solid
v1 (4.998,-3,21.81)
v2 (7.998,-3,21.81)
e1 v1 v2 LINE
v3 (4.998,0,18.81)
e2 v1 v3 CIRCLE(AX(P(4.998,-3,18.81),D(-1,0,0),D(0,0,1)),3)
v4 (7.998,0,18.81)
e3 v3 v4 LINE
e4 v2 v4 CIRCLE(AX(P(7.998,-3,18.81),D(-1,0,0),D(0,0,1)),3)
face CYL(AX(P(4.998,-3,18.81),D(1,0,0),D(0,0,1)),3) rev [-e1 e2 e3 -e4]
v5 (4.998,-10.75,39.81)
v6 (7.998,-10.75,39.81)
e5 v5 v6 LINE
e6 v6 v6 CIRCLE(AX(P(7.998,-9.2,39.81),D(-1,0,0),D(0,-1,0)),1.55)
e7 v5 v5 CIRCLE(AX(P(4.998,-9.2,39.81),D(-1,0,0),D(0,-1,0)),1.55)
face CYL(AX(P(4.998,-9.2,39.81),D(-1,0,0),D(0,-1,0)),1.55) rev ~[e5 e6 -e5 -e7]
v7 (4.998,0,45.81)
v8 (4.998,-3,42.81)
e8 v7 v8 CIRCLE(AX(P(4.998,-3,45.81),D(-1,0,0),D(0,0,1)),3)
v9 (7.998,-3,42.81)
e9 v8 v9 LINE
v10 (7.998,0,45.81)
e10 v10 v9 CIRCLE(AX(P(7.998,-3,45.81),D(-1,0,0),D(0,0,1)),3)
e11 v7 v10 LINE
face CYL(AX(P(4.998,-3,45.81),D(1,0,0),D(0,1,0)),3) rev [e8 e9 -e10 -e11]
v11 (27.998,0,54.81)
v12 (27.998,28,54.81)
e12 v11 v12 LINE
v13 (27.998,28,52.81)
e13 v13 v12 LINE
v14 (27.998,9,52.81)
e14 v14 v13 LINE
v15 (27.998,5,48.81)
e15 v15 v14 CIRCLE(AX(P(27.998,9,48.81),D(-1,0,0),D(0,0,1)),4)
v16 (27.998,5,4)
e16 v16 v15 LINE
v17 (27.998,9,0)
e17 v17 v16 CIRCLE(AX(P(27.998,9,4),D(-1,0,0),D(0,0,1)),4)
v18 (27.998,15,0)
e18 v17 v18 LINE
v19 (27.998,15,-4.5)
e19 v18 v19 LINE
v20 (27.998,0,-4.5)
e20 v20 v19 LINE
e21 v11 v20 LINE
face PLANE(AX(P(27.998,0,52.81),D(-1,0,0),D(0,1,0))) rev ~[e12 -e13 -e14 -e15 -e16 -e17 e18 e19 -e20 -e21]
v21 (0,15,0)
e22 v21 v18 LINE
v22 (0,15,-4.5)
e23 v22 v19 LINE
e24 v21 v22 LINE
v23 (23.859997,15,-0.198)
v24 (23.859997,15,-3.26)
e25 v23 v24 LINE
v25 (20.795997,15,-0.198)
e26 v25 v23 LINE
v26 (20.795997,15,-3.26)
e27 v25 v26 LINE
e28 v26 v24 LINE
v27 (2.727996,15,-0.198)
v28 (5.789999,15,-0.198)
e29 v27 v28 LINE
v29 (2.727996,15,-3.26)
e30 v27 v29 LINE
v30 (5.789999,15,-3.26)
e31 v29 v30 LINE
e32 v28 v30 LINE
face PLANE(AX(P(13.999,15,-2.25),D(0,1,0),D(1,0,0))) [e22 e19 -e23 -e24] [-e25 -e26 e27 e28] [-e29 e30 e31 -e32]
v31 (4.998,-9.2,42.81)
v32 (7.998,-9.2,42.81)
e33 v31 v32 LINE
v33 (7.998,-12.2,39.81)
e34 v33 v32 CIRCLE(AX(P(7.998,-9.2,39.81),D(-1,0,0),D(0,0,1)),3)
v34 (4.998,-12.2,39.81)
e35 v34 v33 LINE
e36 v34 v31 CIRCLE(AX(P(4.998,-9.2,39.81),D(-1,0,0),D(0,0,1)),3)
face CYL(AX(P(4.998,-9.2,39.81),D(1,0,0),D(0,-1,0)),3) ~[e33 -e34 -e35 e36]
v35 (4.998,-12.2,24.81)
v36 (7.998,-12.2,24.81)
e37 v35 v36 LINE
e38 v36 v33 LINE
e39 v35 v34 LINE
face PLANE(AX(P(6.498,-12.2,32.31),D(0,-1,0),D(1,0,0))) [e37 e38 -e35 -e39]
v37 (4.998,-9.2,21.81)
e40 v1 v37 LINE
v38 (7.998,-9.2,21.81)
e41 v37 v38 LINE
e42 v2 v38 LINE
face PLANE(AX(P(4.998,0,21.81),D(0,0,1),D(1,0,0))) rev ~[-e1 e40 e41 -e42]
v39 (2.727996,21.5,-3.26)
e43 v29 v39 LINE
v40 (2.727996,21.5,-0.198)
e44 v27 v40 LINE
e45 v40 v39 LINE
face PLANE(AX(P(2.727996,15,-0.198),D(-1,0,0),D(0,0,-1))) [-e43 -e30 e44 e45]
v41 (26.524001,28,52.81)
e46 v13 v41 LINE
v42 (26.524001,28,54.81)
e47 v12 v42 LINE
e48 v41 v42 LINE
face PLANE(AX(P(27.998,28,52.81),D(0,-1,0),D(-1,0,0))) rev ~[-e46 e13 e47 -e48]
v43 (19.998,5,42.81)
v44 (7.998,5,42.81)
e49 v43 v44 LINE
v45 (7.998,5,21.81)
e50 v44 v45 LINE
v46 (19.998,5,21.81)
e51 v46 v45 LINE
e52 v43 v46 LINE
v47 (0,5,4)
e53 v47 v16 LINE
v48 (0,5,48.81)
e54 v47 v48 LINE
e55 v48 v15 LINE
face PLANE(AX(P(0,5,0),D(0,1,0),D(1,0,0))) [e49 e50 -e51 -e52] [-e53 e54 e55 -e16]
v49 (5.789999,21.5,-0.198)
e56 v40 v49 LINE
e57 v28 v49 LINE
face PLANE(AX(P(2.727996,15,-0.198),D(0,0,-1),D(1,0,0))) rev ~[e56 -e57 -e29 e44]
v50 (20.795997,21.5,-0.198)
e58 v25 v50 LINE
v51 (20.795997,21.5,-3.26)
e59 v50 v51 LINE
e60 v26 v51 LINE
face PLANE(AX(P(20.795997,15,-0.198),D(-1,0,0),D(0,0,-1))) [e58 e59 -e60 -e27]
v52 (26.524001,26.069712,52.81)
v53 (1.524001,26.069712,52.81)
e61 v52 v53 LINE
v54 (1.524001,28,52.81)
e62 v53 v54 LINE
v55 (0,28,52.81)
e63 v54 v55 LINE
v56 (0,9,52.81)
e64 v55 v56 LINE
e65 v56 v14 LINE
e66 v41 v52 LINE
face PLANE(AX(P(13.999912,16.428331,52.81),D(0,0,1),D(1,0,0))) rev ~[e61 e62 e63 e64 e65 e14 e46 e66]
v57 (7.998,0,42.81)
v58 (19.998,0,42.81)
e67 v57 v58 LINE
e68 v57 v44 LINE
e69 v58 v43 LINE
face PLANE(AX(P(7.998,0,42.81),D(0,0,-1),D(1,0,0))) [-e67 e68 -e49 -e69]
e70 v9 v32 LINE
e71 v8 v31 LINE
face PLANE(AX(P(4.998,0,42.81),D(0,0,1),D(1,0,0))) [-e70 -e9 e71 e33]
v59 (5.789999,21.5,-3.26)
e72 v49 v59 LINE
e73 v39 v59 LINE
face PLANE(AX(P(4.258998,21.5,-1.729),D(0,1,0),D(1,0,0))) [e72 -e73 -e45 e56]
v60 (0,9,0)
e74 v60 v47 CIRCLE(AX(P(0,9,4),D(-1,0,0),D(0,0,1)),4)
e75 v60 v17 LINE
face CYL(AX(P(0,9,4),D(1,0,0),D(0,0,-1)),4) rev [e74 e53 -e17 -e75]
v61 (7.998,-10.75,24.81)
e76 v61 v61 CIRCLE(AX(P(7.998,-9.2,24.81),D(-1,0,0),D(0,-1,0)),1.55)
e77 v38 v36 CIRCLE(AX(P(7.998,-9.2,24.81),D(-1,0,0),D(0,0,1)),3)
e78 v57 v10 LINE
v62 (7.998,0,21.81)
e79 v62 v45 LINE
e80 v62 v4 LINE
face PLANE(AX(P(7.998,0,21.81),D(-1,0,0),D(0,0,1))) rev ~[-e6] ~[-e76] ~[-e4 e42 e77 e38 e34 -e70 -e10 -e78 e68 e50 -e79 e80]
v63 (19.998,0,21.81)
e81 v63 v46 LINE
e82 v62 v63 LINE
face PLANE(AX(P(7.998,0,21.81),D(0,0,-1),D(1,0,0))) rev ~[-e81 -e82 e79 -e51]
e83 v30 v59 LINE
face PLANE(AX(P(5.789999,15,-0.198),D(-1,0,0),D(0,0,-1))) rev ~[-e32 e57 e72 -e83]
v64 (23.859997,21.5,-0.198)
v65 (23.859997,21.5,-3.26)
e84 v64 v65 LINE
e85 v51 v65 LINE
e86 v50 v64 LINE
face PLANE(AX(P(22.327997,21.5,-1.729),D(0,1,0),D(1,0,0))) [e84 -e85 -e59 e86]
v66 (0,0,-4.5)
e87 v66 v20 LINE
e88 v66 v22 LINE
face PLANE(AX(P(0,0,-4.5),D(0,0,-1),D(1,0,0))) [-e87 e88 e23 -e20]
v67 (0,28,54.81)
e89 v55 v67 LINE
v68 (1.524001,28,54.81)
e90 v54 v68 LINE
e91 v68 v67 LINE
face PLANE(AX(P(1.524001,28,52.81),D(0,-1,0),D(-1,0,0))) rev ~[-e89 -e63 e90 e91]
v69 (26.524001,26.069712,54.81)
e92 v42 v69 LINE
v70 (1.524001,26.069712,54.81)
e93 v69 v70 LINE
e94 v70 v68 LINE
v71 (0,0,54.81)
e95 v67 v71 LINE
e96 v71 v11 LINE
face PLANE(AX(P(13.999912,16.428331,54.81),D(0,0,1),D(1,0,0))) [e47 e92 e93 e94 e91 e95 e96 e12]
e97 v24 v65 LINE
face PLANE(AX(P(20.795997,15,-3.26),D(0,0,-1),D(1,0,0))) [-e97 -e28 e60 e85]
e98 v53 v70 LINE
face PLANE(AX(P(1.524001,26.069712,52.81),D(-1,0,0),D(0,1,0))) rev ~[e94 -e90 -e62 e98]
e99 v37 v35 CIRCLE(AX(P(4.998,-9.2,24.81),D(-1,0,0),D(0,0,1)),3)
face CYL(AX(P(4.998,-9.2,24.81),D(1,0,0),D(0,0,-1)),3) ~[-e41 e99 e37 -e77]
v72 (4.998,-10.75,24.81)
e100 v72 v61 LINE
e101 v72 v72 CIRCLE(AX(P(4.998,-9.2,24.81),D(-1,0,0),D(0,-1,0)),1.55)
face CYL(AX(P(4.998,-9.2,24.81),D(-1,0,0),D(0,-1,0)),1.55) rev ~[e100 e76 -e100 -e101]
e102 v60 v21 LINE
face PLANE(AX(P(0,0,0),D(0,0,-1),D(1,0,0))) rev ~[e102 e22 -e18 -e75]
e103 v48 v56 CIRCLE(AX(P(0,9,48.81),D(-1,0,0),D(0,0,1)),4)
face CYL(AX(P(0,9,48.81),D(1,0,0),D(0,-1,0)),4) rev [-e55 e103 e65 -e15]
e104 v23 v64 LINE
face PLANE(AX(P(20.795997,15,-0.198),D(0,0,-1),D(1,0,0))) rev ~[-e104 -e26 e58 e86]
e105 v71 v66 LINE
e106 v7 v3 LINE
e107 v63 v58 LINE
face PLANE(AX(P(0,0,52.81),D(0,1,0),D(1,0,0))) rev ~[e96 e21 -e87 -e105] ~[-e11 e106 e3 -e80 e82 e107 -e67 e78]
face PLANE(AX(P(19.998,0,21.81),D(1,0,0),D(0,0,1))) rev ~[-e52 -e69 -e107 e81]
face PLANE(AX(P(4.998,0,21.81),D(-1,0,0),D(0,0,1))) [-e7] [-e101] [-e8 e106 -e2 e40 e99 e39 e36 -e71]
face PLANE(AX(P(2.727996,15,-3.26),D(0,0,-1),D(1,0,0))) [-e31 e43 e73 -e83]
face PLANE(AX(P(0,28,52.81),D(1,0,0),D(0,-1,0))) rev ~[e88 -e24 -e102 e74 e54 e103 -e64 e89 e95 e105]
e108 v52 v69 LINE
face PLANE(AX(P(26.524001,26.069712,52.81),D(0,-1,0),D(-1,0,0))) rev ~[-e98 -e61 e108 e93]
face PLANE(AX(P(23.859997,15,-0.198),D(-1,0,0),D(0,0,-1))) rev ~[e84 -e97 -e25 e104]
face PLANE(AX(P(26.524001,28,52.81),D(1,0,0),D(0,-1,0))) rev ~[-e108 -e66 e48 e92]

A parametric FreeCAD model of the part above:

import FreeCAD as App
import Part
import Sketcher
from FreeCAD import Vector
Q = App.Units.Quantity


def edges_at(feature, points):
    """Names of the edges that pass closest to the given points."""
    edges = feature.Shape.Edges
    near = lambda p: min(range(len(edges)), key=lambda i: edges[i].distToShape(Part.Vertex(*p))[0])
    return sorted({f"Edge{near(p) + 1}" for p in points})


def add_polygon(sketch, points):
    """Adds a closed chain of lines whose ends are joined by coincident constraints."""
    first, n = sketch.GeometryCount, len(points)
    for a, b in zip(points, points[1:] + points[:1]):
        sketch.addGeometry(Part.LineSegment(App.Vector(*a, 0), App.Vector(*b, 0)), False)
    for i in range(n):
        sketch.addConstraint(Sketcher.Constraint("Coincident", first + i, 2, first + (i + 1) % n, 1))

doc = App.newDocument("Part")
params = doc.addObject("Spreadsheet::Sheet", "Params")
for row, (alias, value) in enumerate([
    ("sketch1_height", "4.5 mm"),
    ("pad1_length", "15 mm"),
    ("sketch2_height", "5 mm"),
    ("pad2_length", "52.81 mm"),
    ("fillet_radius", "4 mm"),
    ("sketch3_width", "25 mm"),
    ("sketch3_height", "28 mm"),
    ("pad3_length", "2 mm"),
    ("fillet2_radius", "4 mm"),
    ("pad4_length", "6.5 mm"),
    ("sketch5_width", "12 mm"),
    ("sketch5_height", "21 mm"),
    ("pocket1_length", "6.5 mm"),
    ("sketch6_width", "3 mm"),
    ("sketch6_height", "21 mm"),
    ("pad5_length", "12.2 mm"),
    ("sketch7_diameter", "3.1 mm"),
    ("pocket2_length", "12.2 mm"),
    ("fillet3_radius", "3 mm"),
    ("fillet4_radius", "3 mm"),
], start=1):
    params.set(f"A{row}", alias)
    params.set(f"B{row}", "=" + value)
    params.setAlias(f"B{row}", alias)

body = doc.addObject("PartDesign::Body", "Body")

# Sketch on XZ plane
sketch1 = body.newObject("Sketcher::SketchObject", "Sketch")
sketch1.AttachmentSupport = (doc.getObject("XZ_Plane"), [""])
sketch1.MapMode = "FlatFace"
add_polygon(sketch1, [(0, -4.5), (0, 0), (28, 0), (28, -4.5)])  # lines 0-3
sketch1.addConstraint([
    Sketcher.Constraint("Vertical", 0),
    Sketcher.Constraint("Horizontal", 1),
    Sketcher.Constraint("Vertical", 2),
    Sketcher.Constraint("Horizontal", 3),
    Sketcher.Constraint("Coincident", 0, 2, -1, 1),
    Sketcher.Constraint("DistanceY", 0, 1, 0, 2, Q("4.5 mm")),
    Sketcher.Constraint("DistanceX", 1, 1, 1, 2, Q("27.998 mm")),
])
sketch1.setExpression("Constraints[9]", "Params.sketch1_height")
pad1 = body.newObject("PartDesign::Pad", "Pad")
pad1.Profile = sketch1
pad1.setExpression("Length", "Params.pad1_length")
pad1.Reversed = True

# Sketch on XY plane
sketch2 = body.newObject("Sketcher::SketchObject", "Sketch001")
sketch2.AttachmentSupport = (doc.getObject("XY_Plane"), [""])
sketch2.MapMode = "FlatFace"
add_polygon(sketch2, [(0, 5), (0, 0), (28, 0), (28, 5)])  # lines 0-3
sketch2.addConstraint([
    Sketcher.Constraint("Vertical", 0),
    Sketcher.Constraint("Horizontal", 1),
    Sketcher.Constraint("Vertical", 2),
    Sketcher.Constraint("Horizontal", 3),
    Sketcher.Constraint("Coincident", 0, 2, -1, 1),
    Sketcher.Constraint("DistanceY", 0, 2, 0, 1, Q("5 mm")),
    Sketcher.Constraint("DistanceX", 1, 1, 1, 2, Q("27.998 mm")),
])
sketch2.setExpression("Constraints[9]", "Params.sketch2_height")
pad2 = body.newObject("PartDesign::Pad", "Pad001")
pad2.Profile = sketch2
pad2.setExpression("Length", "Params.pad2_length")
doc.recompute()

fillet = body.newObject("PartDesign::Fillet", "Fillet")
fillet.Base = (pad2, edges_at(pad2, [(13.999, 5, 0)]))
fillet.setExpression("Radius", "Params.fillet_radius")

# Sketch on XY plane
sketch3 = body.newObject("Sketcher::SketchObject", "Sketch002")
sketch3.AttachmentSupport = (doc.getObject("XY_Plane"), [""])
sketch3.MapMode = "FlatFace"
sketch3.AttachmentOffset = App.Placement(Vector(0, 0, 52.81), App.Rotation())
add_polygon(sketch3, [(28, 28), (26.5, 28), (26.5, 26.1), (1.5, 26.1), (1.5, 28), (0, 28), (0, 0), (28, 0)])  # lines 0-7
sketch3.addConstraint([
    Sketcher.Constraint("Horizontal", 0),
    Sketcher.Constraint("Vertical", 1),
    Sketcher.Constraint("Horizontal", 2),
    Sketcher.Constraint("Vertical", 3),
    Sketcher.Constraint("Horizontal", 4),
    Sketcher.Constraint("Vertical", 5),
    Sketcher.Constraint("Horizontal", 6),
    Sketcher.Constraint("Vertical", 7),
    Sketcher.Constraint("Coincident", 5, 2, -1, 1),
    Sketcher.Constraint("Horizontal", 0, 2, 3, 2),
    Sketcher.Constraint("DistanceX", 2, 2, 2, 1, Q("25 mm")),
    Sketcher.Constraint("DistanceY", 5, 2, 5, 1, Q("28 mm")),
    Sketcher.Constraint("DistanceX", 0, 2, 0, 1, Q("1.474 mm")),
    Sketcher.Constraint("DistanceX", 4, 2, 4, 1, Q("1.524001 mm")),
    Sketcher.Constraint("DistanceY", 1, 2, 1, 1, Q("1.930288 mm")),
])
sketch3.setExpression("Constraints[18]", "Params.sketch3_width")
sketch3.setExpression("Constraints[19]", "Params.sketch3_height")
pad3 = body.newObject("PartDesign::Pad", "Pad002")
pad3.Profile = sketch3
pad3.setExpression("Length", "Params.pad3_length")
doc.recompute()

fillet2 = body.newObject("PartDesign::Fillet", "Fillet001")
fillet2.Base = (pad3, edges_at(pad3, [(13.999, 5, 52.81)]))
fillet2.setExpression("Radius", "Params.fillet2_radius")

# Sketch on XZ plane
sketch4 = body.newObject("Sketcher::SketchObject", "Sketch003")
sketch4.AttachmentSupport = (doc.getObject("XZ_Plane"), [""])
sketch4.MapMode = "FlatFace"
sketch4.AttachmentOffset = App.Placement(Vector(0, 0, -15), App.Rotation())
add_polygon(sketch4, [(20.8, -3.3), (20.8, -0.2), (23.9, -0.2), (23.9, -3.3)])  # lines 0-3
add_polygon(sketch4, [(2.7, -3.3), (2.7, -0.2), (5.8, -0.2), (5.8, -3.3)])  # lines 4-7
sketch4.addConstraint([
    Sketcher.Constraint("Vertical", 0),
    Sketcher.Constraint("Horizontal", 1),
    Sketcher.Constraint("Vertical", 2),
    Sketcher.Constraint("Horizontal", 3),
    Sketcher.Constraint("Vertical", 4),
    Sketcher.Constraint("Horizontal", 5),
    Sketcher.Constraint("Vertical", 6),
    Sketcher.Constraint("Horizontal", 7),
    Sketcher.Constraint("Horizontal", 1, 2, 4, 2),
    Sketcher.Constraint("Horizontal", 3, 2, 6, 2),
    Sketcher.Constraint("DistanceX", 1, 1, 1, 2, Q("3.064 mm")),
    Sketcher.Constraint("DistanceY", 0, 1, 0, 2, Q("3.062 mm")),
    Sketcher.Constraint("DistanceY", 2, 2, -1, 1, Q("3.26 mm")),
    Sketcher.Constraint("DistanceX", -1, 1, 5, 2, Q("5.789999 mm")),
    Sketcher.Constraint("DistanceX", 4, 2, 0, 2, Q("18.068001 mm")),
    Sketcher.Constraint("DistanceX", 5, 1, 5, 2, Q("3.062003 mm")),
])
pad4 = body.newObject("PartDesign::Pad", "Pad003")
pad4.Profile = sketch4
pad4.setExpression("Length", "Params.pad4_length")
pad4.Reversed = True

# Sketch on XZ plane
sketch5 = body.newObject("Sketcher::SketchObject", "Sketch004")
sketch5.AttachmentSupport = (doc.getObject("XZ_Plane"), [""])
sketch5.MapMode = "FlatFace"
add_polygon(sketch5, [(8, 43), (8, 22), (20, 22), (20, 43)])  # lines 0-3
sketch5.addConstraint([
    Sketcher.Constraint("Vertical", 0),
    Sketcher.Constraint("Horizontal", 1),
    Sketcher.Constraint("Vertical", 2),
    Sketcher.Constraint("Horizontal", 3),
    Sketcher.Constraint("DistanceX", 1, 1, 1, 2, Q("12 mm")),
    Sketcher.Constraint("DistanceY", 0, 2, 0, 1, Q("21 mm")),
    Sketcher.Constraint("DistanceY", -1, 1, 0, 2, Q("21.81 mm")),
    Sketcher.Constraint("DistanceX", -1, 1, 0, 2, Q("7.998 mm")),
])
sketch5.setExpression("Constraints[8]", "Params.sketch5_width")
sketch5.setExpression("Constraints[9]", "Params.sketch5_height")
pocket1 = body.newObject("PartDesign::Pocket", "Pocket")
pocket1.Profile = sketch5
pocket1.setExpression("Length", "Params.pocket1_length")

# Sketch on XZ plane
sketch6 = body.newObject("Sketcher::SketchObject", "Sketch005")
sketch6.AttachmentSupport = (doc.getObject("XZ_Plane"), [""])
sketch6.MapMode = "FlatFace"
add_polygon(sketch6, [(5, 42.8), (5, 21.8), (8, 21.8), (8, 42.8)])  # lines 0-3
sketch6.addConstraint([
    Sketcher.Constraint("Vertical", 0),
    Sketcher.Constraint("Horizontal", 1),
    Sketcher.Constraint("Vertical", 2),
    Sketcher.Constraint("Horizontal", 3),
    Sketcher.Constraint("DistanceX", 1, 1, 1, 2, Q("3 mm")),
    Sketcher.Constraint("DistanceY", 0, 2, 0, 1, Q("21 mm")),
    Sketcher.Constraint("DistanceY", -1, 1, 0, 2, Q("21.81 mm")),
    Sketcher.Constraint("DistanceX", -1, 1, 0, 2, Q("4.998 mm")),
])
sketch6.setExpression("Constraints[8]", "Params.sketch6_width")
sketch6.setExpression("Constraints[9]", "Params.sketch6_height")
pad5 = body.newObject("PartDesign::Pad", "Pad004")
pad5.Profile = sketch6
pad5.setExpression("Length", "Params.pad5_length")

# Sketch on YZ plane
sketch7 = body.newObject("Sketcher::SketchObject", "Sketch006")
sketch7.AttachmentSupport = (doc.getObject("YZ_Plane"), [""])
sketch7.MapMode = "FlatFace"
sketch7.AttachmentOffset = App.Placement(Vector(0, 0, 4.998), App.Rotation())
sketch7.addGeometry([
    Part.Circle(Vector(-9.2, 24.8, 0), Vector(0, 0, 1), 1.6),
    Part.Circle(Vector(-9.2, 39.8, 0), Vector(0, 0, 1), 1.6),
], False)
sketch7.addConstraint([
    Sketcher.Constraint("Equal", 0, 1),
    Sketcher.Constraint("Vertical", 0, 3, 1, 3),
    Sketcher.Constraint("Diameter", 0, Q("3.1 mm")),
    Sketcher.Constraint("DistanceY", 0, 3, 1, 3, Q("15 mm")),
    Sketcher.Constraint("DistanceX", 0, 3, -1, 1, Q("9.2 mm")),
    Sketcher.Constraint("DistanceY", -1, 1, 0, 3, Q("24.81 mm")),
])
sketch7.setExpression("Constraints[2]", "Params.sketch7_diameter")
pocket2 = body.newObject("PartDesign::Pocket", "Pocket001")
pocket2.Profile = sketch7
pocket2.setExpression("Length", "Params.pocket2_length")
pocket2.Reversed = True
doc.recompute()

fillet3 = body.newObject("PartDesign::Fillet", "Fillet002")
fillet3.Base = (pocket2, edges_at(pocket2, [(6.498, -12.2, 42.81), (6.498, -12.2, 21.81)]))
fillet3.setExpression("Radius", "Params.fillet3_radius")
doc.recompute()

fillet4 = body.newObject("PartDesign::Fillet", "Fillet003")
fillet4.Base = (fillet3, edges_at(fillet3, [(6.498, 0, 42.81), (6.498, 0, 21.81)]))
fillet4.setExpression("Radius", "Params.fillet4_radius")

doc.recompute()
